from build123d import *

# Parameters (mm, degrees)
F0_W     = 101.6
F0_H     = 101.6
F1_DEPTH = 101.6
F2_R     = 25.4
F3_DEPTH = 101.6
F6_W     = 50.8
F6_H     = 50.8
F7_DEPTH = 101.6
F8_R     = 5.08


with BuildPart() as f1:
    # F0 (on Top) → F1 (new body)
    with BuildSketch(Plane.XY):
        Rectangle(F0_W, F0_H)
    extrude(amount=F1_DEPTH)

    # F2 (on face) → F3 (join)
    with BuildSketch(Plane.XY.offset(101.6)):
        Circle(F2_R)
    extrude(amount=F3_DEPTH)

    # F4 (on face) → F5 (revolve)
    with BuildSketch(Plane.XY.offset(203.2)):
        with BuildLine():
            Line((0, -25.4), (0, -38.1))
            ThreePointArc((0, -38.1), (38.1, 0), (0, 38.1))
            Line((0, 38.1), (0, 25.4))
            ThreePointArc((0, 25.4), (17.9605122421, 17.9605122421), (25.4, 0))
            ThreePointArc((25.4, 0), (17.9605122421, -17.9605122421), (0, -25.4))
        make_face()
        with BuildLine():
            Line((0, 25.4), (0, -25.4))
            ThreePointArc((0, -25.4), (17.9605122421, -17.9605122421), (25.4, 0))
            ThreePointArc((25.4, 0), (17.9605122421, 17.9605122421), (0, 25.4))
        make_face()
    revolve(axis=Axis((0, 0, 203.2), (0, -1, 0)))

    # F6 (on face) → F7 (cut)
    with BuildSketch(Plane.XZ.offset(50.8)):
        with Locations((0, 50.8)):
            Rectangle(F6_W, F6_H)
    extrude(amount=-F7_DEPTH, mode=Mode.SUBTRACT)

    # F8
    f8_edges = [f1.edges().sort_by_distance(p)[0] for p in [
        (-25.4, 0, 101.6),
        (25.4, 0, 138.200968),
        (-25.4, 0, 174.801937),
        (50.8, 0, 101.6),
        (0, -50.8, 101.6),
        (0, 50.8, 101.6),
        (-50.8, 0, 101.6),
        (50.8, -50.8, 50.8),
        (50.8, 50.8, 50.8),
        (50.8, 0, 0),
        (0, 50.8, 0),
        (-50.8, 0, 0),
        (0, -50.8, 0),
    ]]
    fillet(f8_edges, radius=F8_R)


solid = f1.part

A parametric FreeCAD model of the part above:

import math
import FreeCAD as App
import Part
import Sketcher
Q = App.Units.Quantity


def edges_at(feature, points):
    """Names of the edges that pass closest to the given points."""
    edges = feature.Shape.Edges
    near = lambda p: min(range(len(edges)), key=lambda i: edges[i].distToShape(Part.Vertex(*p))[0])
    return sorted({f"Edge{near(p) + 1}" for p in points})

doc = App.newDocument("Part")
params = doc.addObject("Spreadsheet::Sheet", "Params")
for row, (alias, value) in enumerate([
    ("sketch1_width", "4 in"),
    ("pad1_length", "4 in"),
    ("sketch2_diameter", "2 in"),
    ("pad2_length", "4 in"),
    ("sketch3_radius", "1.5 in"),
    ("revolution_angle", "360 deg"),
    ("sketch4_width", "2 in"),
    ("pocket1_length", "4 in"),
    ("fillet_radius", "0.2 in"),
], start=1):
    params.set(f"A{row}", alias)
    params.set(f"B{row}", "=" + value)
    params.setAlias(f"B{row}", alias)

body = doc.addObject("PartDesign::Body", "Body")

# Sketch on XY plane
sketch1 = doc.addObject("Sketcher::SketchObject", "Sketch")
body.addObject(sketch1)
sketch1.AttachmentSupport = (doc.XY_Plane, [""])
sketch1.MapMode = "FlatFace"
sketch1.addGeometry(Part.LineSegment(App.Vector(-51, 51, 0), App.Vector(-51, -51, 0)), False)
sketch1.addGeometry(Part.LineSegment(App.Vector(-51, -51, 0), App.Vector(51, -51, 0)), False)
sketch1.addGeometry(Part.LineSegment(App.Vector(51, -51, 0), App.Vector(51, 51, 0)), False)
sketch1.addGeometry(Part.LineSegment(App.Vector(51, 51, 0), App.Vector(-51, 51, 0)), False)
sketch1.addConstraint(Sketcher.Constraint("Coincident", 0, 2, 1, 1))
sketch1.addConstraint(Sketcher.Constraint("Coincident", 1, 2, 2, 1))
sketch1.addConstraint(Sketcher.Constraint("Coincident", 2, 2, 3, 1))
sketch1.addConstraint(Sketcher.Constraint("Coincident", 3, 2, 0, 1))
sketch1.addConstraint(Sketcher.Constraint("Vertical", 0))
sketch1.addConstraint(Sketcher.Constraint("Horizontal", 1))
sketch1.addConstraint(Sketcher.Constraint("Vertical", 2))
sketch1.addConstraint(Sketcher.Constraint("Horizontal", 3))
sketch1.addConstraint(Sketcher.Constraint("Symmetric", 0, 2, 2, 2, -1, 1))
sketch1.addConstraint(Sketcher.Constraint("Equal", 3, 0))
sketch1.addConstraint(Sketcher.Constraint("DistanceX", 1, 1, 1, 2, Q("4 in")))
sketch1.setExpression("Constraints[10]", "Params.sketch1_width")
pad1 = doc.addObject("PartDesign::Pad", "Pad")
body.addObject(pad1)
pad1.Profile = sketch1
pad1.setExpression("Length", "Params.pad1_length")

# Sketch on XY plane
sketch2 = doc.addObject("Sketcher::SketchObject", "Sketch001")
body.addObject(sketch2)
sketch2.AttachmentSupport = (doc.XY_Plane, [""])
sketch2.MapMode = "FlatFace"
sketch2.AttachmentOffset = App.Placement(App.Vector(0, 0, 4 * 25.4), App.Rotation())
sketch2.addGeometry(Part.Circle(App.Vector(0, 0, 0), App.Vector(0, 0, 1), 25), False)
sketch2.addConstraint(Sketcher.Constraint("Coincident", 0, 3, -1, 1))
sketch2.addConstraint(Sketcher.Constraint("Diameter", 0, Q("2 in")))
sketch2.setExpression("Constraints[1]", "Params.sketch2_diameter")
pad2 = doc.addObject("PartDesign::Pad", "Pad001")
body.addObject(pad2)
pad2.Profile = sketch2
pad2.setExpression("Length", "Params.pad2_length")

# Sketch on XY plane
sketch3 = doc.addObject("Sketcher::SketchObject", "Sketch002")
body.addObject(sketch3)
sketch3.AttachmentSupport = (doc.XY_Plane, [""])
sketch3.MapMode = "FlatFace"
sketch3.AttachmentOffset = App.Placement(App.Vector(0, 0, 8 * 25.4), App.Rotation())
sketch3.addGeometry(Part.ArcOfCircle(Part.Circle(App.Vector(0, 0, 0), App.Vector(0, 0, 1), 38), math.radians(-90), math.radians(90)), False)
sketch3.addGeometry(Part.LineSegment(App.Vector(0, 38, 0), App.Vector(0, -38, 0)), False)
sketch3.addConstraint(Sketcher.Constraint("Coincident", 0, 1, 1, 2))
sketch3.addConstraint(Sketcher.Constraint("Coincident", 1, 1, 0, 2))
sketch3.addConstraint(Sketcher.Constraint("Vertical", 1))
sketch3.addConstraint(Sketcher.Constraint("Coincident", 0, 3, -1, 1))
sketch3.addConstraint(Sketcher.Constraint("PointOnObject", 0, 1, -2))
sketch3.addConstraint(Sketcher.Constraint("Radius", 0, Q("1.5 in")))
sketch3.setExpression("Constraints[5]", "Params.sketch3_radius")
revolution = doc.addObject("PartDesign::Revolution", "Revolution")
body.addObject(revolution)
revolution.Profile = sketch3
revolution.ReferenceAxis = (sketch3, ["V_Axis"])
revolution.setExpression("Angle", "Params.revolution_angle")

# Sketch on XZ plane
sketch4 = doc.addObject("Sketcher::SketchObject", "Sketch003")
body.addObject(sketch4)
sketch4.AttachmentSupport = (doc.XZ_Plane, [""])
sketch4.MapMode = "FlatFace"
sketch4.AttachmentOffset = App.Placement(App.Vector(0, 0, 2 * 25.4), App.Rotation())
sketch4.addGeometry(Part.LineSegment(App.Vector(-25, 76, 0), App.Vector(-25, 25, 0)), False)
sketch4.addGeometry(Part.LineSegment(App.Vector(-25, 25, 0), App.Vector(25, 25, 0)), False)
sketch4.addGeometry(Part.LineSegment(App.Vector(25, 25, 0), App.Vector(25, 76, 0)), False)
sketch4.addGeometry(Part.LineSegment(App.Vector(25, 76, 0), App.Vector(-25, 76, 0)), False)
sketch4.addConstraint(Sketcher.Constraint("Coincident", 0, 2, 1, 1))
sketch4.addConstraint(Sketcher.Constraint("Coincident", 1, 2, 2, 1))
sketch4.addConstraint(Sketcher.Constraint("Coincident", 2, 2, 3, 1))
sketch4.addConstraint(Sketcher.Constraint("Coincident", 3, 2, 0, 1))
sketch4.addConstraint(Sketcher.Constraint("Vertical", 0))
sketch4.addConstraint(Sketcher.Constraint("Horizontal", 1))
sketch4.addConstraint(Sketcher.Constraint("Vertical", 2))
sketch4.addConstraint(Sketcher.Constraint("Horizontal", 3))
sketch4.addConstraint(Sketcher.Constraint("Equal", 3, 0))
sketch4.addConstraint(Sketcher.Constraint("DistanceX", 1, 1, 1, 2, Q("2 in")))
sketch4.addConstraint(Sketcher.Constraint("DistanceX", 0, 2, -1, 1, Q("1 in")))
sketch4.addConstraint(Sketcher.Constraint("DistanceY", -1, 1, 0, 2, Q("1 in")))
sketch4.setExpression("Constraints[9]", "Params.sketch4_width")
pocket1 = doc.addObject("PartDesign::Pocket", "Pocket")
body.addObject(pocket1)
pocket1.Profile = sketch4
pocket1.setExpression("Length", "Params.pocket1_length")
doc.recompute()

fillet = doc.addObject("PartDesign::Fillet", "Fillet")
body.addObject(fillet)
fillet.Base = (pocket1, edges_at(pocket1, [
    (-25.4, 0, 101.6),
    (25.4, 0, 138.201),
    (-25.4, 0, 174.802),
    (50.8, 0, 101.6),
    (0, -50.8, 101.6),
    (0, 50.8, 101.6),
    (-50.8, 0, 101.6),
    (50.8, -50.8, 50.8),
    (50.8, 50.8, 50.8),
    (50.8, 0, 0),
    (0, 50.8, 0),
    (-50.8, 0, 0),
    (0, -50.8, 0),
]))
fillet.setExpression("Radius", "Params.fillet_radius")

doc.recompute()
